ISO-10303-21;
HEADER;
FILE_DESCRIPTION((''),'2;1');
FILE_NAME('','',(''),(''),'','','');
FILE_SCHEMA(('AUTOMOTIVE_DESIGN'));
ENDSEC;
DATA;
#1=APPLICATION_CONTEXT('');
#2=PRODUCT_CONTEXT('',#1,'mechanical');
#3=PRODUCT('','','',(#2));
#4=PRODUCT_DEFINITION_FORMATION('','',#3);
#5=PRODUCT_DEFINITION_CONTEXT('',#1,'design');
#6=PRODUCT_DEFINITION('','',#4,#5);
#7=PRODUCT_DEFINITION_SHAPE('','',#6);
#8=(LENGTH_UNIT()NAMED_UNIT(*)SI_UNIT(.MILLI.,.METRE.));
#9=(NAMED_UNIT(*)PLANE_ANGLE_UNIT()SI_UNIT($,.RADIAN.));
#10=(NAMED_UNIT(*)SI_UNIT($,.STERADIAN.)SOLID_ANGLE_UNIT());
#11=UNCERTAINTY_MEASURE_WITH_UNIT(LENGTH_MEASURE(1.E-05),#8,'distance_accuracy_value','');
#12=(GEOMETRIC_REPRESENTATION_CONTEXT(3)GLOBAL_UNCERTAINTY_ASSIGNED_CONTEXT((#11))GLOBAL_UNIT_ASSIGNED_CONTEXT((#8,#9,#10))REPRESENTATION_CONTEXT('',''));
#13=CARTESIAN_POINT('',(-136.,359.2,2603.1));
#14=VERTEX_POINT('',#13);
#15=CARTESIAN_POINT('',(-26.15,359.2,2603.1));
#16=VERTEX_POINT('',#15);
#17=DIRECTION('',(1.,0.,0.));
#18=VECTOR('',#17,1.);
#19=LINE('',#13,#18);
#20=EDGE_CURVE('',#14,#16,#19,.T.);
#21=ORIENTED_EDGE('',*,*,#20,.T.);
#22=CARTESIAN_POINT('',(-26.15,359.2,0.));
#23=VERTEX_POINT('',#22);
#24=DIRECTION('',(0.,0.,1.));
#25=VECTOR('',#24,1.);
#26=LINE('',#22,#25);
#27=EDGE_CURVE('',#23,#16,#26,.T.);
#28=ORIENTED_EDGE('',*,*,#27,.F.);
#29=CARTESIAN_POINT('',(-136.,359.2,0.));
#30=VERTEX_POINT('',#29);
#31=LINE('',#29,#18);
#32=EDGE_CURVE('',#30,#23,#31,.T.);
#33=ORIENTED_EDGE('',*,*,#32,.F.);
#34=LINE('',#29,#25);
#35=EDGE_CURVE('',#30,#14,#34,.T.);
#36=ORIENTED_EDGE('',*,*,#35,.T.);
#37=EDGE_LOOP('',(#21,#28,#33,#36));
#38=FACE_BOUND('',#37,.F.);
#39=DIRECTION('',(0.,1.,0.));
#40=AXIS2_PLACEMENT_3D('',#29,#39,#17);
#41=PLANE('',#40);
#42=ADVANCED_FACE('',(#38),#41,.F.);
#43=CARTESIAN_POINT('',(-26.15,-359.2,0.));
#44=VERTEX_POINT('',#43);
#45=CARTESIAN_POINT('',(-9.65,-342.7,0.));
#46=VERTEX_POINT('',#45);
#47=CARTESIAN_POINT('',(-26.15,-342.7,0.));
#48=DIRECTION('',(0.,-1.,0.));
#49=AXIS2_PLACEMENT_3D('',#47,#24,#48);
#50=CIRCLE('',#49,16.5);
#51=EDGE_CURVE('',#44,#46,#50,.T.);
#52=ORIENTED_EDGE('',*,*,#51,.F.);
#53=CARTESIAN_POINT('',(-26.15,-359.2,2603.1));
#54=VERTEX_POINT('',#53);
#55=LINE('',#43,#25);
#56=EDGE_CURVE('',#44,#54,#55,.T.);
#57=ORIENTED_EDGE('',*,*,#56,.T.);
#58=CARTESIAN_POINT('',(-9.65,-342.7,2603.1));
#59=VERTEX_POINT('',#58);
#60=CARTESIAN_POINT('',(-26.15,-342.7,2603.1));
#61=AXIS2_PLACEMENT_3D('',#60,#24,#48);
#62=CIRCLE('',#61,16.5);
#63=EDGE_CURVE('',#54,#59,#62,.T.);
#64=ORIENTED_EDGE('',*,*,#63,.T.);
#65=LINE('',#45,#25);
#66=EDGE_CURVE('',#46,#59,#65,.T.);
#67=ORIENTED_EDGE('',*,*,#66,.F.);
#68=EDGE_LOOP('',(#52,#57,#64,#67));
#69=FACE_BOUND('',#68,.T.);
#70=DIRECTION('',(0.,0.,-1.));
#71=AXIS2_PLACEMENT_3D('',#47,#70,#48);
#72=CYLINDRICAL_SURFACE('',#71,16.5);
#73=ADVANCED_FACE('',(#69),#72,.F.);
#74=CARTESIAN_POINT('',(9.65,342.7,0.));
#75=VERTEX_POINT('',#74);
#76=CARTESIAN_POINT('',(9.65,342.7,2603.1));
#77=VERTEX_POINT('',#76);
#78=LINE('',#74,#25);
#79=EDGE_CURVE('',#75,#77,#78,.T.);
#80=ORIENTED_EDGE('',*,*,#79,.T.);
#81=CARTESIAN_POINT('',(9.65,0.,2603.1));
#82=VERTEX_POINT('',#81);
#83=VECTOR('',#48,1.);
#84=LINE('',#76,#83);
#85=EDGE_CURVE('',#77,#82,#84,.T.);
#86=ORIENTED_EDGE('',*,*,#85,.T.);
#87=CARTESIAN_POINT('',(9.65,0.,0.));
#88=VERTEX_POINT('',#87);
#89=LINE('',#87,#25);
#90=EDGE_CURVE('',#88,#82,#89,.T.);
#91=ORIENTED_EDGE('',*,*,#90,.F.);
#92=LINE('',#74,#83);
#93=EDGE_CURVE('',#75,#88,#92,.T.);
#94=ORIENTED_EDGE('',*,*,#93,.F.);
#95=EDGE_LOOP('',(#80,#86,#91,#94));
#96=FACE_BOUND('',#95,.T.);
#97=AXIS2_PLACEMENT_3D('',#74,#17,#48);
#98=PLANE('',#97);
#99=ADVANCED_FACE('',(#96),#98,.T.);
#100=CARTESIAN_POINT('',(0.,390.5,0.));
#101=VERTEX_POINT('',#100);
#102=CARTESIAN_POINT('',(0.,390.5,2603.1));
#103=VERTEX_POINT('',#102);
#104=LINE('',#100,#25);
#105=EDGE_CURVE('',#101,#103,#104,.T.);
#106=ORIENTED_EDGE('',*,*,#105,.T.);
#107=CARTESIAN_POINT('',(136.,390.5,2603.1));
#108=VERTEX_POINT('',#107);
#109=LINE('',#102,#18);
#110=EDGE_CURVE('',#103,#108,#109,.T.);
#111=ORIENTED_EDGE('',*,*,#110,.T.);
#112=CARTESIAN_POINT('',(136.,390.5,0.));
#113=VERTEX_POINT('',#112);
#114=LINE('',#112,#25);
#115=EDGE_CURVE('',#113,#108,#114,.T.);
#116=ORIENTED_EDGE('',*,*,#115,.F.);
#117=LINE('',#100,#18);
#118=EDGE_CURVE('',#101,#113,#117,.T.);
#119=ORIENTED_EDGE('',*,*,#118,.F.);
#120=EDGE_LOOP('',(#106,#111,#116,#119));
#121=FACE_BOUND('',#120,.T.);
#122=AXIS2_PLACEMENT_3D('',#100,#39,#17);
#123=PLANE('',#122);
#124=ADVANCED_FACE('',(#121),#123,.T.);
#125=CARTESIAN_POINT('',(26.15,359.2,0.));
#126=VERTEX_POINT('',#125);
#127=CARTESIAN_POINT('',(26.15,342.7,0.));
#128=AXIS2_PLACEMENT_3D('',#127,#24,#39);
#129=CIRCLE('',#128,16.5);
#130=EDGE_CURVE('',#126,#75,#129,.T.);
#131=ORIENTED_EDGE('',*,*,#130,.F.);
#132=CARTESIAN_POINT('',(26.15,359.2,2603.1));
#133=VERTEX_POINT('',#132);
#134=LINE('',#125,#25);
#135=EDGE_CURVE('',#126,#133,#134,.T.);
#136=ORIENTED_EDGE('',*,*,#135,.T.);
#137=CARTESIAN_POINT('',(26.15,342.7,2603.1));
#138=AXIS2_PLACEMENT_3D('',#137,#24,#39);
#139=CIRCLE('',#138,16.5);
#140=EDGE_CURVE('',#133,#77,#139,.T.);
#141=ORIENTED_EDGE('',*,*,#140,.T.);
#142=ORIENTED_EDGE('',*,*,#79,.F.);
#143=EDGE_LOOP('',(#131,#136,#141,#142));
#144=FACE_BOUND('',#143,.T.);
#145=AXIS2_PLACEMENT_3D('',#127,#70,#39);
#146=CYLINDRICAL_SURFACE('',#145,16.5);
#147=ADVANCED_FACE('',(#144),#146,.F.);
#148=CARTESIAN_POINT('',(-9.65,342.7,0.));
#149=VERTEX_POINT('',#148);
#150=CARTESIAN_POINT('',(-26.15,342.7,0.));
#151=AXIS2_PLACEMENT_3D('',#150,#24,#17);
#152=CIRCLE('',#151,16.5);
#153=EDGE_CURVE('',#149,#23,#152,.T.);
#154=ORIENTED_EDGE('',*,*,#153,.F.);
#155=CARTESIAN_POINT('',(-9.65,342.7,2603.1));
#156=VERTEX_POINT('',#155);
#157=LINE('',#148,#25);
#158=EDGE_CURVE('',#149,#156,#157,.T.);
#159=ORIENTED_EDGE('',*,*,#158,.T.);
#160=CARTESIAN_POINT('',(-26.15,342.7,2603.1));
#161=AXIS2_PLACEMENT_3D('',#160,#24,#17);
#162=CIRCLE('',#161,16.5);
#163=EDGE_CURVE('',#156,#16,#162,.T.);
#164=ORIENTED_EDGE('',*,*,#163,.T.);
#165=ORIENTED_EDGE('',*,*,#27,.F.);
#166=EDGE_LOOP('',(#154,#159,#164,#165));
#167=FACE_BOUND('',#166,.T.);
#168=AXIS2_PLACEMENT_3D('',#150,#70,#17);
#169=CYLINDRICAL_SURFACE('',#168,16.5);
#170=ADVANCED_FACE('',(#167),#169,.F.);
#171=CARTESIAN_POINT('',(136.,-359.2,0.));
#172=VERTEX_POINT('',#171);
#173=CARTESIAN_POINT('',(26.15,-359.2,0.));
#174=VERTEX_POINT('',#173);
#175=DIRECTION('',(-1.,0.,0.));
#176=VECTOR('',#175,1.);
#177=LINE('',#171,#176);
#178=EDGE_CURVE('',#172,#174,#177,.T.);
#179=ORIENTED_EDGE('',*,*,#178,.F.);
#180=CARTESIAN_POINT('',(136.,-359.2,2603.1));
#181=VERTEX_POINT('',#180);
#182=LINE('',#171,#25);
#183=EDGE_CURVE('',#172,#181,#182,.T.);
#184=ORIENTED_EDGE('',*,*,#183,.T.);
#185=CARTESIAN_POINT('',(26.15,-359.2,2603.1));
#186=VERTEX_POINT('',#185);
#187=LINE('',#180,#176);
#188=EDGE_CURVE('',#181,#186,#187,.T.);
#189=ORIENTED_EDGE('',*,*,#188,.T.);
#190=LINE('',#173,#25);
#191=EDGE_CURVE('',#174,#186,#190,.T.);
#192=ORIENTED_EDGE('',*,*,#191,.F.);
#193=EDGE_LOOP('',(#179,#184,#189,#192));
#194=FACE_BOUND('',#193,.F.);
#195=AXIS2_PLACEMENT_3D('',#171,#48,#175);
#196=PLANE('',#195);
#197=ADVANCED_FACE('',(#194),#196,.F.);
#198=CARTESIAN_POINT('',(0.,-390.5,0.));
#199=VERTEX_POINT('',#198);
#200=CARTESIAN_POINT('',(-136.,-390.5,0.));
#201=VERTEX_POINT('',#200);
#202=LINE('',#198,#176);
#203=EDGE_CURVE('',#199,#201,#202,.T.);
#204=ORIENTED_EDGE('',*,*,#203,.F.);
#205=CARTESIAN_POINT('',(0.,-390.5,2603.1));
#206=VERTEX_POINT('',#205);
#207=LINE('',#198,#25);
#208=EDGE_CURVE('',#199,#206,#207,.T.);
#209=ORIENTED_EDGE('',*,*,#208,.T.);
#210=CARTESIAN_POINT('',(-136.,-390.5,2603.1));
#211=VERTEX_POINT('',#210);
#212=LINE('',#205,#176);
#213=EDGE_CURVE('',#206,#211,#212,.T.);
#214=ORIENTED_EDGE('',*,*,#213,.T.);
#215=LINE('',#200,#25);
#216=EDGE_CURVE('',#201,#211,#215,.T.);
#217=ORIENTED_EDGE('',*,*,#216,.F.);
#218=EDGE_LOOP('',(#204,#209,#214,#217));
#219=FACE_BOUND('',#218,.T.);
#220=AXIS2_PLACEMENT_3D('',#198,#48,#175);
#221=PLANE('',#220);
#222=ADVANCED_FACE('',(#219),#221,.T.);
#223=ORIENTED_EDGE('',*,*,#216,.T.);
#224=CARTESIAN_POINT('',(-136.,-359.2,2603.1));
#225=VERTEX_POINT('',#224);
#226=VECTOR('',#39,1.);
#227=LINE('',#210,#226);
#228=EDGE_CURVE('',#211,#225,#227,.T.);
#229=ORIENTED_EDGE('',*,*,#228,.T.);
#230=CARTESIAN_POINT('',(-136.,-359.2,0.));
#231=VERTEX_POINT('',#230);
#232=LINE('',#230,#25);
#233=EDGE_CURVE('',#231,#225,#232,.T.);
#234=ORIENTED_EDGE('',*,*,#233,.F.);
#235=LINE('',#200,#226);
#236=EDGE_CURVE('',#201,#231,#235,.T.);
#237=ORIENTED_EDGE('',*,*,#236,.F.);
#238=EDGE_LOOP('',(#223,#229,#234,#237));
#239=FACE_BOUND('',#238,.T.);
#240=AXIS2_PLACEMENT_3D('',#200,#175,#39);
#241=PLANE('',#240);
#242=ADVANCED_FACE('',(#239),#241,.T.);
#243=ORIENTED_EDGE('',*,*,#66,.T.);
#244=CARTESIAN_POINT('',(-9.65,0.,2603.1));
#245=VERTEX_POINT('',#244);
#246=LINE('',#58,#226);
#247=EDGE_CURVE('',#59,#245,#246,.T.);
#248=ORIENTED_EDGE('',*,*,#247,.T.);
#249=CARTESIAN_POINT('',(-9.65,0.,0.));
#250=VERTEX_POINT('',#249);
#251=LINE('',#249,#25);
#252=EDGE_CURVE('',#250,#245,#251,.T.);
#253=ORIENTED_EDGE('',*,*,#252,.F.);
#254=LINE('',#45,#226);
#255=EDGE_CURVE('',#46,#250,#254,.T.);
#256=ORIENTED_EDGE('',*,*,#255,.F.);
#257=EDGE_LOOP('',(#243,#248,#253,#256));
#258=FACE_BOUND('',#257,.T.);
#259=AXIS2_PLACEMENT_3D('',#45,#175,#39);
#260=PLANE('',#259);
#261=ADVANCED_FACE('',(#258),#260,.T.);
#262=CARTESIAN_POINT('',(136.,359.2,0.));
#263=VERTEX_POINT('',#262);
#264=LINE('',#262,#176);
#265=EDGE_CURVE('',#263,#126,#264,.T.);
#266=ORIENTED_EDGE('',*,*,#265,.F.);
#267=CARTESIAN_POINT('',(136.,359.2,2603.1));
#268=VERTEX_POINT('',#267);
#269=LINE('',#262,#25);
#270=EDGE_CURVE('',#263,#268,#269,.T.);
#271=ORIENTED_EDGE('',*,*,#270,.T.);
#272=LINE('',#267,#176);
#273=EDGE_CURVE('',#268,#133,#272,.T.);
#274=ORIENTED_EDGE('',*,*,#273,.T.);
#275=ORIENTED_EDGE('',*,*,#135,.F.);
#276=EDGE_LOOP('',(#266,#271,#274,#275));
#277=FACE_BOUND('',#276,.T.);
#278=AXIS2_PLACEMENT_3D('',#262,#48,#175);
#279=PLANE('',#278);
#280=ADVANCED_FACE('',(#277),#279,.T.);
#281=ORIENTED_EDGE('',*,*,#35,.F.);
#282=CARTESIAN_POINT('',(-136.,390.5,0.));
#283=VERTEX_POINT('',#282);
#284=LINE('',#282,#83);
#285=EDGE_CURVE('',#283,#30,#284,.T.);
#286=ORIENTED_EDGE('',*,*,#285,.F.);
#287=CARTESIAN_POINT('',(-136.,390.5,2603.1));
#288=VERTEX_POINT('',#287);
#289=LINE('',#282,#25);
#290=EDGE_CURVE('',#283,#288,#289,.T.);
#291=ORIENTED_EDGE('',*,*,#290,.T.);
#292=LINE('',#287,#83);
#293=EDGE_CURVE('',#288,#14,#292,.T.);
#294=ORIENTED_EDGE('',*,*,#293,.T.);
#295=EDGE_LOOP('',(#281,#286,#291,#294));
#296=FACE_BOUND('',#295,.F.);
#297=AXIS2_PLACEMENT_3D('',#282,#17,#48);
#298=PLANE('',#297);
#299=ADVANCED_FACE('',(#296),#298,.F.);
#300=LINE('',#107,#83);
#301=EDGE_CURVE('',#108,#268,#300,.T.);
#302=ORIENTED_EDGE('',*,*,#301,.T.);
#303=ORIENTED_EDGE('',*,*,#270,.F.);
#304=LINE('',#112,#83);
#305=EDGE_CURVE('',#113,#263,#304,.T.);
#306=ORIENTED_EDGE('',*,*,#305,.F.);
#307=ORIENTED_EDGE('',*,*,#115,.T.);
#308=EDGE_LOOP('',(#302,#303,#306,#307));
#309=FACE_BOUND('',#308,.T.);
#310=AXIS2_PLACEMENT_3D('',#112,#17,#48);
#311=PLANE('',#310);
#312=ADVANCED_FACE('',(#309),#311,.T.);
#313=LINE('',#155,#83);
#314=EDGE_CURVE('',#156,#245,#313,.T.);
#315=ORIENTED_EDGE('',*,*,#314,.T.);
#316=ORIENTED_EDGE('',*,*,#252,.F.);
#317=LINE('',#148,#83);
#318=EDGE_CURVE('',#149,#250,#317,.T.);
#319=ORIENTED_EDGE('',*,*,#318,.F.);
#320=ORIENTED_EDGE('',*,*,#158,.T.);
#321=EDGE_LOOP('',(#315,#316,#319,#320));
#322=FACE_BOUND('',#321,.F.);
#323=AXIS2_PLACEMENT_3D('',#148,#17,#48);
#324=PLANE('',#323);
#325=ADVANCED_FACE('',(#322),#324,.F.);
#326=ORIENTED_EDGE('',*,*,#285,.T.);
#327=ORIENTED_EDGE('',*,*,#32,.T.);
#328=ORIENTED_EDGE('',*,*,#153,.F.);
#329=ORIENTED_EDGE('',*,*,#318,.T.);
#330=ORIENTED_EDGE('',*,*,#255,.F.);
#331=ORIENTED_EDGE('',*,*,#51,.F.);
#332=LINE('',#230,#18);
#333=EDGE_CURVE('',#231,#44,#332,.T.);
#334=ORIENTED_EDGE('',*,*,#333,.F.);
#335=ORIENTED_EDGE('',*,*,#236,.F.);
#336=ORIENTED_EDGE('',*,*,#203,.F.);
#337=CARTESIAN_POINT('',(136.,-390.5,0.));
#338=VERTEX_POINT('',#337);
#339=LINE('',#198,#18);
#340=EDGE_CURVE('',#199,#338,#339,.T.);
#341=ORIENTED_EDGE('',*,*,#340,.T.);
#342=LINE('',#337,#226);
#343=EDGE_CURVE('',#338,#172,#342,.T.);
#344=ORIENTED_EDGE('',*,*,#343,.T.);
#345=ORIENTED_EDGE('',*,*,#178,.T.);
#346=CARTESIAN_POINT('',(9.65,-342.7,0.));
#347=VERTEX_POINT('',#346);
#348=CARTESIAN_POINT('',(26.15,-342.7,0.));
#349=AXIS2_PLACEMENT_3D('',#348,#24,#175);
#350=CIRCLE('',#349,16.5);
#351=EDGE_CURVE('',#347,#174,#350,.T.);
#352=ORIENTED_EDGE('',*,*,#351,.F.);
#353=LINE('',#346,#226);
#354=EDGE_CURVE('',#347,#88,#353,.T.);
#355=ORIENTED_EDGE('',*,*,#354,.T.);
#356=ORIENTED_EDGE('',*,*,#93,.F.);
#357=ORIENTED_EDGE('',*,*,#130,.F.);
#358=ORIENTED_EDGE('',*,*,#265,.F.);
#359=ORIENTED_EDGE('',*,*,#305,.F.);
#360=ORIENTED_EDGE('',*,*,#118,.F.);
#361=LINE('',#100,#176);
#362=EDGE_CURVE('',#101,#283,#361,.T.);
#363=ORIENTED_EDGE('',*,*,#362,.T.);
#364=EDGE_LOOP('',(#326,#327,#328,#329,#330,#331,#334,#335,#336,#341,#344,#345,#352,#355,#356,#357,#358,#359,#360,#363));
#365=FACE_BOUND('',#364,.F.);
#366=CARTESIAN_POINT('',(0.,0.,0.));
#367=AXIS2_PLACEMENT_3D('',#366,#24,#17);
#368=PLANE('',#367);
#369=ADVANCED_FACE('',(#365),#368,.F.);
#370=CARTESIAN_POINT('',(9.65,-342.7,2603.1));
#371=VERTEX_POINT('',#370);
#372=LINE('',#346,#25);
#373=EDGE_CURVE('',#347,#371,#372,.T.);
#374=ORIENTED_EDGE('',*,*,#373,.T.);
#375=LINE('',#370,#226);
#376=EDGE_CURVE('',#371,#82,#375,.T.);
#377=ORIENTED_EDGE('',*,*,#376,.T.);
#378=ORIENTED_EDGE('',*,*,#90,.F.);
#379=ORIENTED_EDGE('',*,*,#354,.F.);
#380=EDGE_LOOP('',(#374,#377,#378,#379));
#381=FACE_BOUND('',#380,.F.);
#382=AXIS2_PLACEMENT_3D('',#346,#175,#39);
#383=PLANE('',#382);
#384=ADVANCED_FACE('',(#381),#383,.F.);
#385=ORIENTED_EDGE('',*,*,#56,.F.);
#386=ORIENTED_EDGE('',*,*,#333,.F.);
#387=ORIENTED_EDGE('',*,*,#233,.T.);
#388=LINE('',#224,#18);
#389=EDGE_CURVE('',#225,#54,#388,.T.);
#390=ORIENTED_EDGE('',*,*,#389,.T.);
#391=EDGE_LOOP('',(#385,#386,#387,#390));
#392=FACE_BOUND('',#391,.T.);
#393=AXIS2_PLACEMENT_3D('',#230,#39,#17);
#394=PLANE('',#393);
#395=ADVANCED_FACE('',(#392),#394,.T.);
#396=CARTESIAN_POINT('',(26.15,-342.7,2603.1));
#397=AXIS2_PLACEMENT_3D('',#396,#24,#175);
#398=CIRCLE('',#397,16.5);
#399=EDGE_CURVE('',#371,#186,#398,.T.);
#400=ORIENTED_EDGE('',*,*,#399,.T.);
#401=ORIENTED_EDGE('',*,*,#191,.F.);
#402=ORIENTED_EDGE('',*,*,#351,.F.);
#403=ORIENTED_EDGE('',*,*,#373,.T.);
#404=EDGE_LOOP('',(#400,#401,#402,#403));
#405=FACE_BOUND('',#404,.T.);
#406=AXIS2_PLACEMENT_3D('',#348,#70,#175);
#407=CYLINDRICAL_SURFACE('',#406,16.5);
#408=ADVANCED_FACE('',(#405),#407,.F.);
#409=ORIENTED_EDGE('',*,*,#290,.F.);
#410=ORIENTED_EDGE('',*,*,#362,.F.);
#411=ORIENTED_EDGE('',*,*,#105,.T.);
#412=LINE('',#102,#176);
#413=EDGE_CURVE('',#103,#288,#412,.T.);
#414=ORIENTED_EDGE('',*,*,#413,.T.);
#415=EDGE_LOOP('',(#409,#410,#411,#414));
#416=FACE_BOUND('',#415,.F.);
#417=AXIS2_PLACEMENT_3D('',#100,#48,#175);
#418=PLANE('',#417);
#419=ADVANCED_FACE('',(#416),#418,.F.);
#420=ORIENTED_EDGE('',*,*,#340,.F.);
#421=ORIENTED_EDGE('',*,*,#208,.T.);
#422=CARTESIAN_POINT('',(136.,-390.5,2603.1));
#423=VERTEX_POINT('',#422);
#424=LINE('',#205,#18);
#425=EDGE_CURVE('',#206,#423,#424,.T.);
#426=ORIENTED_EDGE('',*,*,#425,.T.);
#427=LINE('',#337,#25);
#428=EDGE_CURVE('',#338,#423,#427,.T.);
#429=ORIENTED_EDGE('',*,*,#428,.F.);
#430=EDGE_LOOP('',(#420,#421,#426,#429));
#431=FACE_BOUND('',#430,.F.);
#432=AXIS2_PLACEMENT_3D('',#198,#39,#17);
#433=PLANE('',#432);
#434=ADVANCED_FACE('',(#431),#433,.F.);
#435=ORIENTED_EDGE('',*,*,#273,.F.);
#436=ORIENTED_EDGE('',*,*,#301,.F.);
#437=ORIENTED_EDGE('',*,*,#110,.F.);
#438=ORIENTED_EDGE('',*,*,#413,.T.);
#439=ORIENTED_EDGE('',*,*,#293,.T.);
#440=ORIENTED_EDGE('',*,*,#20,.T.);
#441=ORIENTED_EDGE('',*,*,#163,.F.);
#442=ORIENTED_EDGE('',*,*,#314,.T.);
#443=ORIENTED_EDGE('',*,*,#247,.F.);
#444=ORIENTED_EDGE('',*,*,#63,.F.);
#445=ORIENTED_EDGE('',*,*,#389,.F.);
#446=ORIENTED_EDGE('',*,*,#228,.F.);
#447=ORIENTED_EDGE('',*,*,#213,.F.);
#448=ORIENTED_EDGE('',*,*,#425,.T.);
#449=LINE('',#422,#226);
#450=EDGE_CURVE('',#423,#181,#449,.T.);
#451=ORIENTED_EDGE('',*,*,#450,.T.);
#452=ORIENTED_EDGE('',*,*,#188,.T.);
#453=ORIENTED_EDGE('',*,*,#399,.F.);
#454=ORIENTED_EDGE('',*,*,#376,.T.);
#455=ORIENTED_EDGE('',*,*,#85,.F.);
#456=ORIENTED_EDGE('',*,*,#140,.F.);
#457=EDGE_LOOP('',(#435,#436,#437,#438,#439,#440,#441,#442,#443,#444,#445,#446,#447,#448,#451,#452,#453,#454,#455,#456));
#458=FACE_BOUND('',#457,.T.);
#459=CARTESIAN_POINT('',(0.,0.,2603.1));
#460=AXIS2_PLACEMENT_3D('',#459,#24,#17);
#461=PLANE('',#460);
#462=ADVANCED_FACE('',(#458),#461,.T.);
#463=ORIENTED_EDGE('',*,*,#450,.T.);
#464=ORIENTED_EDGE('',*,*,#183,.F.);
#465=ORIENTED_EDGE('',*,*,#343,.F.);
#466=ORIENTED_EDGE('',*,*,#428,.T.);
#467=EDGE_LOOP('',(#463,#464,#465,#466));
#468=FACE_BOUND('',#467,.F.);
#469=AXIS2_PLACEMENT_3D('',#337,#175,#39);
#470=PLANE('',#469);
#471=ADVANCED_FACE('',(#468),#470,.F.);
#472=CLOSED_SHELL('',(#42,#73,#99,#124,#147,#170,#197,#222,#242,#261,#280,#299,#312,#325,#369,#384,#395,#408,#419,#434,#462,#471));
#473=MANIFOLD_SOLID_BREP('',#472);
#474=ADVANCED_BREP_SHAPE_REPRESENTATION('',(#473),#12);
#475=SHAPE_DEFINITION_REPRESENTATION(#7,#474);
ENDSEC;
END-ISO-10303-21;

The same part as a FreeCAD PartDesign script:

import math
import FreeCAD as App
import Part
import Sketcher

V = App.Vector

doc = App.newDocument("Part")
body = doc.addObject("PartDesign::Body", "Body")

sketch1 = doc.addObject("Sketcher::SketchObject", "Sketch")
body.addObject(sketch1)
sketch1.AttachmentSupport = (doc.XY_Plane, [""])
sketch1.MapMode = "FlatFace"
sketch1.addGeometry(Part.LineSegment(V(-136, -359, 0), V(-136, -390, 0)), False)
sketch1.addGeometry(Part.LineSegment(V(-136, -390, 0), V(136, -390, 0)), False)
sketch1.addGeometry(Part.LineSegment(V(136, -390, 0), V(136, -359, 0)), False)
sketch1.addGeometry(Part.LineSegment(V(136, -359, 0), V(26, -359, 0)), False)
sketch1.addGeometry(Part.ArcOfCircle(Part.Circle(V(26, -343, 0), V(0, 0, 1), 16), math.radians(180), math.radians(270)), False)
sketch1.addGeometry(Part.LineSegment(V(10, -343, 0), V(10, 343, 0)), False)
sketch1.addGeometry(Part.ArcOfCircle(Part.Circle(V(26, 343, 0), V(0, 0, 1), 16), math.radians(90), math.radians(180)), False)
sketch1.addGeometry(Part.LineSegment(V(26, 359, 0), V(136, 359, 0)), False)
sketch1.addGeometry(Part.LineSegment(V(136, 359, 0), V(136, 390, 0)), False)
sketch1.addGeometry(Part.LineSegment(V(136, 390, 0), V(-136, 390, 0)), False)
sketch1.addGeometry(Part.LineSegment(V(-136, 390, 0), V(-136, 359, 0)), False)
sketch1.addGeometry(Part.LineSegment(V(-136, 359, 0), V(-26, 359, 0)), False)
sketch1.addGeometry(Part.ArcOfCircle(Part.Circle(V(-26, 343, 0), V(0, 0, 1), 16), math.radians(0), math.radians(90)), False)
sketch1.addGeometry(Part.LineSegment(V(-10, 343, 0), V(-10, -343, 0)), False)
sketch1.addGeometry(Part.ArcOfCircle(Part.Circle(V(-26, -343, 0), V(0, 0, 1), 16), math.radians(-90), math.radians(0)), False)
sketch1.addGeometry(Part.LineSegment(V(-26, -359, 0), V(-136, -359, 0)), False)
sketch1.addConstraint(Sketcher.Constraint("Coincident", 0, 2, 1, 1))
sketch1.addConstraint(Sketcher.Constraint("Coincident", 1, 2, 2, 1))
sketch1.addConstraint(Sketcher.Constraint("Coincident", 2, 2, 3, 1))
sketch1.addConstraint(Sketcher.Constraint("Tangent", 3, 2, 4, 2))
sketch1.addConstraint(Sketcher.Constraint("Tangent", 4, 1, 5, 1))
sketch1.addConstraint(Sketcher.Constraint("Tangent", 5, 2, 6, 2))
sketch1.addConstraint(Sketcher.Constraint("Tangent", 6, 1, 7, 1))
sketch1.addConstraint(Sketcher.Constraint("Coincident", 7, 2, 8, 1))
sketch1.addConstraint(Sketcher.Constraint("Coincident", 8, 2, 9, 1))
sketch1.addConstraint(Sketcher.Constraint("Coincident", 9, 2, 10, 1))
sketch1.addConstraint(Sketcher.Constraint("Coincident", 10, 2, 11, 1))
sketch1.addConstraint(Sketcher.Constraint("Tangent", 11, 2, 12, 2))
sketch1.addConstraint(Sketcher.Constraint("Tangent", 12, 1, 13, 1))
sketch1.addConstraint(Sketcher.Constraint("Tangent", 13, 2, 14, 2))
sketch1.addConstraint(Sketcher.Constraint("Tangent", 14, 1, 15, 1))
sketch1.addConstraint(Sketcher.Constraint("Coincident", 15, 2, 0, 1))
sketch1.addConstraint(Sketcher.Constraint("Vertical", 0))
sketch1.addConstraint(Sketcher.Constraint("Horizontal", 1))
sketch1.addConstraint(Sketcher.Constraint("Vertical", 2))
sketch1.addConstraint(Sketcher.Constraint("Horizontal", 3))
sketch1.addConstraint(Sketcher.Constraint("Vertical", 5))
sketch1.addConstraint(Sketcher.Constraint("Horizontal", 7))
sketch1.addConstraint(Sketcher.Constraint("Vertical", 8))
sketch1.addConstraint(Sketcher.Constraint("Horizontal", 9))
sketch1.addConstraint(Sketcher.Constraint("Vertical", 10))
sketch1.addConstraint(Sketcher.Constraint("Horizontal", 11))
sketch1.addConstraint(Sketcher.Constraint("Vertical", 13))
sketch1.addConstraint(Sketcher.Constraint("Horizontal", 15))
sketch1.addConstraint(Sketcher.Constraint("Equal", 4, 6))
sketch1.addConstraint(Sketcher.Constraint("Equal", 6, 12))
sketch1.addConstraint(Sketcher.Constraint("Equal", 12, 14))
sketch1.addConstraint(Sketcher.Constraint("Symmetric", 4, 3, 12, 3, -1, 1))
sketch1.addConstraint(Sketcher.Constraint("Symmetric", 0, 2, 8, 2, -1, 1))
sketch1.addConstraint(Sketcher.Constraint("Symmetric", 7, 2, 10, 2, -2))
sketch1.addConstraint(Sketcher.Constraint("Symmetric", 2, 2, 15, 2, -2))
sketch1.addConstraint(Sketcher.Constraint("Radius", 4, 16.5))
sketch1.addConstraint(Sketcher.Constraint("DistanceY", 0, 2, 0, 1, 31.3))
sketch1.addConstraint(Sketcher.Constraint("DistanceX", 0, 2, -1, 1, 136.0))
sketch1.addConstraint(Sketcher.Constraint("DistanceY", 0, 2, -1, 1, 390.5))
sketch1.addConstraint(Sketcher.Constraint("DistanceX", -1, 1, 4, 1, 9.65))
pad1 = doc.addObject("PartDesign::Pad", "Pad")
body.addObject(pad1)
pad1.Profile = sketch1
pad1.Length = 2603.1

doc.recompute()
